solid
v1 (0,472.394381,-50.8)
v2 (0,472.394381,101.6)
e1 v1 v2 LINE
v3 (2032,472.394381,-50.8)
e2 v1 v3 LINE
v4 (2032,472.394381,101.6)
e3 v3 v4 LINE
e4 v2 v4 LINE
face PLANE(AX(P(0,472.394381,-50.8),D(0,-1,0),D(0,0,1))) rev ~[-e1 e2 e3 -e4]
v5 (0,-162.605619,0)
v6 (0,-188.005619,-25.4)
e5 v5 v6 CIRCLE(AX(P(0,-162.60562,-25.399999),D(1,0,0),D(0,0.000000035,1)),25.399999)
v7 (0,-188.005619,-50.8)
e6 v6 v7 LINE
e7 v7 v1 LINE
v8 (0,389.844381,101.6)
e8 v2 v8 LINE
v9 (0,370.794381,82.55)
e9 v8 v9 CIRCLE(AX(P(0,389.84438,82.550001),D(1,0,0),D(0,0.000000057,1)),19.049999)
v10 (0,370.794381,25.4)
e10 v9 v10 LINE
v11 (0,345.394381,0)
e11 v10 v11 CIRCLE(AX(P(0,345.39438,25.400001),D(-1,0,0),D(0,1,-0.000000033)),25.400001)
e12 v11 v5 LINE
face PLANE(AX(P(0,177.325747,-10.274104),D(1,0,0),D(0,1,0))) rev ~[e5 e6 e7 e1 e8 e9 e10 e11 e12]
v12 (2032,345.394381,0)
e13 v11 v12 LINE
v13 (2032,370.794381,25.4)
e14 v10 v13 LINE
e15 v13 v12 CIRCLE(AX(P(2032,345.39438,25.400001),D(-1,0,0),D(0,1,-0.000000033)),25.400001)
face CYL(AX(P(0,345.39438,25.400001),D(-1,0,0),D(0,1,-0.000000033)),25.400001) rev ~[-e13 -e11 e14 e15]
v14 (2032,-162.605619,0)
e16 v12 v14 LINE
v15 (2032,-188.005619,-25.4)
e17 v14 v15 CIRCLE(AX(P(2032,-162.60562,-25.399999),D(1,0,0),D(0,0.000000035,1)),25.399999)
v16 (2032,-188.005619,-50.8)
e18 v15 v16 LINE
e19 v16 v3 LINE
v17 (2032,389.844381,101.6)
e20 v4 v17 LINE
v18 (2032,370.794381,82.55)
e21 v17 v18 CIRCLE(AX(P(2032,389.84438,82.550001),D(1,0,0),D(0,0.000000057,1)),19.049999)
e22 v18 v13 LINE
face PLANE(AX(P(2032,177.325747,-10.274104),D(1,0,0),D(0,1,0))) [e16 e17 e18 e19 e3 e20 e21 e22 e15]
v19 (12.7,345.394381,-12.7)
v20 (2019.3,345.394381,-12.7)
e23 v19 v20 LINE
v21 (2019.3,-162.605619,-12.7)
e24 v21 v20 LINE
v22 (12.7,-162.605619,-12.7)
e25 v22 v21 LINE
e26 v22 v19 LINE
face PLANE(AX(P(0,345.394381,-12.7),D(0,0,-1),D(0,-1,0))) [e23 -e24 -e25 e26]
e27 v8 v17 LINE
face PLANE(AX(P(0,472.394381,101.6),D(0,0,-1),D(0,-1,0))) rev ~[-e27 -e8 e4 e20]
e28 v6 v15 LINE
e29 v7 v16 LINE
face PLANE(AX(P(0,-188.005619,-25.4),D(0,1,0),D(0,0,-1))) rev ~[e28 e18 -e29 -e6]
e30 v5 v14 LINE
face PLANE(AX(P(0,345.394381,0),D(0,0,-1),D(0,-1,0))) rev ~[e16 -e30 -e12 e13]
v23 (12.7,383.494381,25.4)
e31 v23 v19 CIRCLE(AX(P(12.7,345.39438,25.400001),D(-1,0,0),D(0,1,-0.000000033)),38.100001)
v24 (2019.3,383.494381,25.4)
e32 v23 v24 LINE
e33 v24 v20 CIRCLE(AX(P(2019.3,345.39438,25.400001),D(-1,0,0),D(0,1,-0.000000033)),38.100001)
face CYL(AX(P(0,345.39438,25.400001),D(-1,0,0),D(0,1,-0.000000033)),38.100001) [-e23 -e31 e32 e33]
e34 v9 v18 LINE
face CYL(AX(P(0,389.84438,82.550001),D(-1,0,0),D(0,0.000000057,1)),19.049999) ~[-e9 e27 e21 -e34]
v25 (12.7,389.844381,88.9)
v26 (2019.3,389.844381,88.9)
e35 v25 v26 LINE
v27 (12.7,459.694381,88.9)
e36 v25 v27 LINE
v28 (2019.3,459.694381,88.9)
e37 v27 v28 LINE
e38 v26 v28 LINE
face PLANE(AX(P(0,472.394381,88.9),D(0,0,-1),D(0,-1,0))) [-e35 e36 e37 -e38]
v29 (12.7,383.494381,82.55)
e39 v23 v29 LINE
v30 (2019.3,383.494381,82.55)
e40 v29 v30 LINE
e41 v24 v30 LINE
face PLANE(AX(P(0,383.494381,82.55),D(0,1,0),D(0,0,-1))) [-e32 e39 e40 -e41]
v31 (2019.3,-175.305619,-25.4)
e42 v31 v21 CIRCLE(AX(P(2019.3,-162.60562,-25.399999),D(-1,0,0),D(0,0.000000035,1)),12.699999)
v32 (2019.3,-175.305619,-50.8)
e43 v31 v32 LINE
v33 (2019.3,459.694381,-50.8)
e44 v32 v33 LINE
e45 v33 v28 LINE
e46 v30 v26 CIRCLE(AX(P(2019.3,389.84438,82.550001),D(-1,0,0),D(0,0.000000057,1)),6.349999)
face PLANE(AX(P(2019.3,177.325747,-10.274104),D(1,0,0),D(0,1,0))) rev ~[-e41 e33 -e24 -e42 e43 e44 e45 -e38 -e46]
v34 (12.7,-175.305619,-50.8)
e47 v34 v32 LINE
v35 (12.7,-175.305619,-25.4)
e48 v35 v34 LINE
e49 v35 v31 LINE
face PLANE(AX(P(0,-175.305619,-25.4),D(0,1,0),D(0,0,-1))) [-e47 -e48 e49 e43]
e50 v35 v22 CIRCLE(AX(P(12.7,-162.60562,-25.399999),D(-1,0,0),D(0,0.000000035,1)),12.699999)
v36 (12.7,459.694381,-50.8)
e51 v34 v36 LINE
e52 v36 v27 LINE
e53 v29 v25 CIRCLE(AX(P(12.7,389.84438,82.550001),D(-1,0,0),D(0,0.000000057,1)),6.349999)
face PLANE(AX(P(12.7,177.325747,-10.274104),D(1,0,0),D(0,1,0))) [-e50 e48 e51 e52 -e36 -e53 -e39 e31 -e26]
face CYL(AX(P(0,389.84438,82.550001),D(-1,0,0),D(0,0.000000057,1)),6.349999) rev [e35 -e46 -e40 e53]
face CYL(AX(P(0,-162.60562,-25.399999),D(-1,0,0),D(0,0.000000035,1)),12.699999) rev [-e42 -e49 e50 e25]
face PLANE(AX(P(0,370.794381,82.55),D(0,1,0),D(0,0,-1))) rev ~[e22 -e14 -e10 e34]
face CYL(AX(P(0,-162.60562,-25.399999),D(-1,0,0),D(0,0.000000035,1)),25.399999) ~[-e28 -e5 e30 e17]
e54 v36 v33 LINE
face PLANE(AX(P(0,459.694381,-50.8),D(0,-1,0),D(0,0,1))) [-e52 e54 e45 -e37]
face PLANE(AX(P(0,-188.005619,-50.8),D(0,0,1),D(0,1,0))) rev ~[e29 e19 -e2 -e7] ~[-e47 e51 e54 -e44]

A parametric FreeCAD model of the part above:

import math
import FreeCAD as App
import Part
import Sketcher

V = App.Vector
Q = App.Units.Quantity


def faces_at(feature, points):
    """Names of the faces that lie closest to the given points."""
    faces = feature.Shape.Faces
    near = lambda p: min(range(len(faces)), key=lambda i: faces[i].distToShape(Part.Vertex(*p))[0])
    return sorted({f"Face{near(p) + 1}" for p in points})

doc = App.newDocument("Part")
params = doc.addObject("Spreadsheet::Sheet", "Params")
for row, (alias, value) in enumerate([
    ("sketch1_radius", "1 in"),
    ("sketch1_width", "20 in"),
    ("sketch1_width2", "26 in"),
    ("sketch1_height", "1 in"),
    ("sketch1_height2", "6 in"),
    ("pad1_length", "80 in"),
    ("thickness_wall", "0.5 in"),
], start=1):
    params.set(f"A{row}", alias)
    params.set(f"B{row}", "=" + value)
    params.setAlias(f"B{row}", alias)

body = doc.addObject("PartDesign::Body", "Body")

sketch1 = body.newObject("Sketcher::SketchObject", "Sketch")
sketch1.AttachmentSupport = (doc.getObject("YZ_Plane"), [""])
sketch1.MapMode = "FlatFace"
sketch1.addGeometry([
    Part.LineSegment(V(345, 0, 0), V(-163, 0, 0)),
    Part.ArcOfCircle(Part.Circle(V(-163, -25, 0), V(0, 0, 1), 25), math.radians(90), math.radians(180)),
    Part.LineSegment(V(-188, -25, 0), V(-188, -51, 0)),
    Part.LineSegment(V(-188, -51, 0), V(472, -51, 0)),
    Part.LineSegment(V(472, -51, 0), V(472, 102, 0)),
    Part.LineSegment(V(472, 102, 0), V(390, 102, 0)),
    Part.ArcOfCircle(Part.Circle(V(390, 83, 0), V(0, 0, 1), 19), math.radians(90), math.radians(180)),
    Part.LineSegment(V(371, 83, 0), V(371, 25, 0)),
    Part.ArcOfCircle(Part.Circle(V(345, 25, 0), V(0, 0, 1), 25), math.radians(-90), math.radians(0)),
], False)
sketch1.addConstraint([
    Sketcher.Constraint("Tangent", 0, 2, 1, 1),
    Sketcher.Constraint("Tangent", 1, 2, 2, 1),
    Sketcher.Constraint("Coincident", 2, 2, 3, 1),
    Sketcher.Constraint("Coincident", 3, 2, 4, 1),
    Sketcher.Constraint("Coincident", 4, 2, 5, 1),
    Sketcher.Constraint("Tangent", 5, 2, 6, 1),
    Sketcher.Constraint("Tangent", 6, 2, 7, 1),
    Sketcher.Constraint("Tangent", 7, 2, 8, 2),
    Sketcher.Constraint("Tangent", 8, 1, 0, 1),
    Sketcher.Constraint("Horizontal", 0),
    Sketcher.Constraint("Vertical", 2),
    Sketcher.Constraint("Horizontal", 3),
    Sketcher.Constraint("Vertical", 4),
    Sketcher.Constraint("Horizontal", 5),
    Sketcher.Constraint("Vertical", 7),
    Sketcher.Constraint("Equal", 1, 8),
    Sketcher.Constraint("PointOnObject", 0, 2, -1),
    Sketcher.Constraint("Radius", 1, Q("1 in")),
    Sketcher.Constraint("DistanceX", 0, 2, 0, 1, Q("20 in")),
    Sketcher.Constraint("DistanceX", 3, 1, 3, 2, Q("26 in")),
    Sketcher.Constraint("DistanceY", 2, 2, 2, 1, Q("1 in")),
    Sketcher.Constraint("DistanceY", 4, 1, 4, 2, Q("6 in")),
    Sketcher.Constraint("Radius", 6, Q("0.75 in")),
    Sketcher.Constraint("DistanceX", 1, 3, -1, 1, Q("162.60562 mm")),
])
sketch1.setExpression("Constraints[17]", "Params.sketch1_radius")
sketch1.setExpression("Constraints[18]", "Params.sketch1_width")
sketch1.setExpression("Constraints[19]", "Params.sketch1_width2")
sketch1.setExpression("Constraints[20]", "Params.sketch1_height")
sketch1.setExpression("Constraints[21]", "Params.sketch1_height2")
pad1 = body.newObject("PartDesign::Pad", "Pad")
pad1.Profile = sketch1
pad1.setExpression("Length", "Params.pad1_length")
doc.recompute()

thickness = body.newObject("PartDesign::Thickness", "Thickness")
thickness.Base = (pad1, faces_at(pad1, [(1016, 142.194, -50.8)]))
thickness.setExpression("Value", "Params.thickness_wall")
thickness.Reversed = True
thickness.Join = "Arc"

doc.recompute()
